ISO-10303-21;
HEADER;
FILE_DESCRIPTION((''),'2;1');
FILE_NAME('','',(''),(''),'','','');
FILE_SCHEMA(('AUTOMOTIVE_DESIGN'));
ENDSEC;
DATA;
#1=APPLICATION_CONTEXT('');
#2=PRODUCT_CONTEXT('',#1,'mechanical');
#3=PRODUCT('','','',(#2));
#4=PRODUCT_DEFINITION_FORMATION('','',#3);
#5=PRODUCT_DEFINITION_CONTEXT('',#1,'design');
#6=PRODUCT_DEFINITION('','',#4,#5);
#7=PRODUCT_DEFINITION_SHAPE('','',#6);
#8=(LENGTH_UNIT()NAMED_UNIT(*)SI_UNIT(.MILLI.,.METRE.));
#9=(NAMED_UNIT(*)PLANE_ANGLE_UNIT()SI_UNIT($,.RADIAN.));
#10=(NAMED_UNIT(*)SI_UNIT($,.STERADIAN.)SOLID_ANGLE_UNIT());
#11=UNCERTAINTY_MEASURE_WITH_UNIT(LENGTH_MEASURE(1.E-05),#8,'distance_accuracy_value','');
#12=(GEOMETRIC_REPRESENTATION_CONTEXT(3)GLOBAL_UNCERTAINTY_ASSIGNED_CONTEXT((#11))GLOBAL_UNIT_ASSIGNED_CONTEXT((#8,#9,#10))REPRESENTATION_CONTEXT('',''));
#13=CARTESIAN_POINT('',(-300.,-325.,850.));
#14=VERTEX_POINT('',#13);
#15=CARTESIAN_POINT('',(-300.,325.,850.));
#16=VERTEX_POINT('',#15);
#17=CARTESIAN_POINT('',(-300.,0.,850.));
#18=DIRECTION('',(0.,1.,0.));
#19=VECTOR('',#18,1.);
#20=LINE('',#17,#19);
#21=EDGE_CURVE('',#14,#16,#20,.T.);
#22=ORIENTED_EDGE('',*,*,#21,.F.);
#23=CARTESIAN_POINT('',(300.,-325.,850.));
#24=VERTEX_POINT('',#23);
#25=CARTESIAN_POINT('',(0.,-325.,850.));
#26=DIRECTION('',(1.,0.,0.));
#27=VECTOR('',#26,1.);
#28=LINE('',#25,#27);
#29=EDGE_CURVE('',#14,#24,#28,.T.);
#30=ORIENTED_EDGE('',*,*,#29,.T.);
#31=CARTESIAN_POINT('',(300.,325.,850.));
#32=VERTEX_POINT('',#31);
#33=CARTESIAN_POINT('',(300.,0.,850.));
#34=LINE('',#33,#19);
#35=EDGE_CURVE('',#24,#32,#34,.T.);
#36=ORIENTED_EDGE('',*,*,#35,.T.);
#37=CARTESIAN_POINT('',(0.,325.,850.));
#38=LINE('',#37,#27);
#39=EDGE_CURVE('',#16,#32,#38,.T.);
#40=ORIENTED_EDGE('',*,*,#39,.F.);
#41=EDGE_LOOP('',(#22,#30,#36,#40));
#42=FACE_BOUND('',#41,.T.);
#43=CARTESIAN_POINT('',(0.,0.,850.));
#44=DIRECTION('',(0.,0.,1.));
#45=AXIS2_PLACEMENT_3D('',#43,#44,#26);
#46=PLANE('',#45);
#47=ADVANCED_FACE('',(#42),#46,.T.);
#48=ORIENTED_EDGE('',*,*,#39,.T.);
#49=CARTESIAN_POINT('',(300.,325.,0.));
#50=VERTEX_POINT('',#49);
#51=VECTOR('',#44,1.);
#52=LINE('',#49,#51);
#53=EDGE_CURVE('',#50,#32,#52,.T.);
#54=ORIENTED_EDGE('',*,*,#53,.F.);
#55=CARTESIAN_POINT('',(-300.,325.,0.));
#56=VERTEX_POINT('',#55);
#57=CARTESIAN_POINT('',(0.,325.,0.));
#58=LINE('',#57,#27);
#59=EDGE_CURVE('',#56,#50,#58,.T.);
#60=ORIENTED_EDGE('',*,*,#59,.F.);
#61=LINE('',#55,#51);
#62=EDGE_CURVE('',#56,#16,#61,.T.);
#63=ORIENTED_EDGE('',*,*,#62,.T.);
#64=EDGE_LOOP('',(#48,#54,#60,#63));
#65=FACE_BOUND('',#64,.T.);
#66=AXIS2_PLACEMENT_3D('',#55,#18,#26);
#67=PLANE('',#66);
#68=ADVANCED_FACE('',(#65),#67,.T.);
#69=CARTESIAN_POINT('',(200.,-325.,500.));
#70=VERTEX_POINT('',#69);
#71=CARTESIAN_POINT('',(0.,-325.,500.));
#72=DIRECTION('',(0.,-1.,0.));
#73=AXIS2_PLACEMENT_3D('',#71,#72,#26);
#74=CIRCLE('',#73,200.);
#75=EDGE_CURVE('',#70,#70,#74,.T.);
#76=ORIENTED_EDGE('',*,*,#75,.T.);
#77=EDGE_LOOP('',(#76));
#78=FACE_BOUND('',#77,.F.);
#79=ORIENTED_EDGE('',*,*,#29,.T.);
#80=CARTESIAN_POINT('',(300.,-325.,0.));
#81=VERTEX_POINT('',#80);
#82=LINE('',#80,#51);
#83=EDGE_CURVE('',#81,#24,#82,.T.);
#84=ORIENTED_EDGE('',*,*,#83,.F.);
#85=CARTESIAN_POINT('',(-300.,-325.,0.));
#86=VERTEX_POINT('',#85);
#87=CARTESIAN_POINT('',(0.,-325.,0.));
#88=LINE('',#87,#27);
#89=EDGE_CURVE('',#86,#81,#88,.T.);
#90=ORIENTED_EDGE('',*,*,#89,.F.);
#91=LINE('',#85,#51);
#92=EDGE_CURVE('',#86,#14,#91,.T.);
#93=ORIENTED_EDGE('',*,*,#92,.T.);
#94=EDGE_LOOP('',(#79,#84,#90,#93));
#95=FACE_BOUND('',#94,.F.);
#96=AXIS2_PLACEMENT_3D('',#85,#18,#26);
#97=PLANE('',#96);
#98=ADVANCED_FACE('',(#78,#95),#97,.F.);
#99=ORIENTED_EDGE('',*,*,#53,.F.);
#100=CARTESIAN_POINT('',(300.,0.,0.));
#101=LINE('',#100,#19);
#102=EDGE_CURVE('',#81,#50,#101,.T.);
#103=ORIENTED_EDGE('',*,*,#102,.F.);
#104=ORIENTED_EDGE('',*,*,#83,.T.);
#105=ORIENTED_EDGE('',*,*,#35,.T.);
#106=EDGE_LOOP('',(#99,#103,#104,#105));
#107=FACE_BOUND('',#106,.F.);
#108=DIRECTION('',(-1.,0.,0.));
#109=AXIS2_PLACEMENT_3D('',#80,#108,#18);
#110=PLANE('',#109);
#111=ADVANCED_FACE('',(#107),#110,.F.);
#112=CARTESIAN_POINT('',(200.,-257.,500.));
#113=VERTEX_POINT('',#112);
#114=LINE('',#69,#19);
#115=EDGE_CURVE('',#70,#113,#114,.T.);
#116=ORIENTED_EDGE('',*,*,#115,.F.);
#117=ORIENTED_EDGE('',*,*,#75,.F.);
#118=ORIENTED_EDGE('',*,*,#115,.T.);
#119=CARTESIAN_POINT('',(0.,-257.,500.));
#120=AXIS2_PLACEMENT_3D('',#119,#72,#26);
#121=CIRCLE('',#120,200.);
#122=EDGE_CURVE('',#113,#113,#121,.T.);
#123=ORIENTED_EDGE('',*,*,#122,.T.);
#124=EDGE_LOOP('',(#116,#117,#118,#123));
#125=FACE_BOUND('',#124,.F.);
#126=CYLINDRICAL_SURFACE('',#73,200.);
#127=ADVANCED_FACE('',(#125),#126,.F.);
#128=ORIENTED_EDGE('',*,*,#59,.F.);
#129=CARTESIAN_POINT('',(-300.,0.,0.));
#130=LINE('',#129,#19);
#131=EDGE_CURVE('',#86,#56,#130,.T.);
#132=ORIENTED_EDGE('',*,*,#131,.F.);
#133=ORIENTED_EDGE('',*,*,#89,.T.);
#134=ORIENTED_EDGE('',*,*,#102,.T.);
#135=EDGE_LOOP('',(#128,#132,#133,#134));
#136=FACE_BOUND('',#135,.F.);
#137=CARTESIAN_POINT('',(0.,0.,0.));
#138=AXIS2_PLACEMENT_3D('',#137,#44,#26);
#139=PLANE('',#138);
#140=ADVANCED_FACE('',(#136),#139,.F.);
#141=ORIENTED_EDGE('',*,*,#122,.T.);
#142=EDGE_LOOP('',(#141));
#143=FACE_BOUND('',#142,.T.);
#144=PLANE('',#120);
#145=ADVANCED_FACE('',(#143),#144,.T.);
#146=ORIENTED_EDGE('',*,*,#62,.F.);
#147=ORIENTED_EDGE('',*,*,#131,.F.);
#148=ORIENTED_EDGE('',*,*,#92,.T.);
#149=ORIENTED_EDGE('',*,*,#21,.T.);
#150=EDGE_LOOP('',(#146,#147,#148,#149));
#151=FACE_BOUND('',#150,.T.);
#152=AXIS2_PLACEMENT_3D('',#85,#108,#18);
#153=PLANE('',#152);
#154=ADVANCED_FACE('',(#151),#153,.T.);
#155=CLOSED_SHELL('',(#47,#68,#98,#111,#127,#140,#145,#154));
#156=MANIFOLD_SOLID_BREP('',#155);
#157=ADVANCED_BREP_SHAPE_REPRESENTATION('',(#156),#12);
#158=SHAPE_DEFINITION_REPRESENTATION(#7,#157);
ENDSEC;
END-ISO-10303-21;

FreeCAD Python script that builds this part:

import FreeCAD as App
import Part
import Sketcher


def add_polygon(sketch, points):
    """Adds a closed chain of lines whose ends are joined by coincident constraints."""
    first, n = sketch.GeometryCount, len(points)
    for a, b in zip(points, points[1:] + points[:1]):
        sketch.addGeometry(Part.LineSegment(App.Vector(*a, 0), App.Vector(*b, 0)), False)
    for i in range(n):
        sketch.addConstraint(Sketcher.Constraint("Coincident", first + i, 2, first + (i + 1) % n, 1))

doc = App.newDocument("Part")
body = doc.addObject("PartDesign::Body", "Body")

# Sketch on XY plane
sketch1 = doc.addObject("Sketcher::SketchObject", "Sketch")
body.addObject(sketch1)
sketch1.AttachmentSupport = (doc.XY_Plane, [""])
sketch1.MapMode = "FlatFace"
add_polygon(sketch1, [(-300, 325), (-300, -325), (300, -325), (300, 325)])  # lines 0-3
sketch1.addConstraint([
    Sketcher.Constraint("Vertical", 0),
    Sketcher.Constraint("Horizontal", 1),
    Sketcher.Constraint("Vertical", 2),
    Sketcher.Constraint("Horizontal", 3),
    Sketcher.Constraint("Symmetric", 0, 2, 2, 2, -1, 1),
    Sketcher.Constraint("DistanceX", 1, 1, 1, 2, 600.0),
    Sketcher.Constraint("DistanceY", 0, 2, 0, 1, 650.0),
])
pad1 = doc.addObject("PartDesign::Pad", "Pad")
body.addObject(pad1)
pad1.Profile = sketch1
pad1.Length = 850

# Sketch on XZ plane
sketch2 = doc.addObject("Sketcher::SketchObject", "Sketch001")
body.addObject(sketch2)
sketch2.AttachmentSupport = (doc.XZ_Plane, [""])
sketch2.MapMode = "FlatFace"
sketch2.AttachmentOffset = App.Placement(App.Vector(0, 0, 325), App.Rotation())
sketch2.addGeometry(Part.Circle(App.Vector(0, 500, 0), App.Vector(0, 0, 1), 200), False)
sketch2.addConstraint([
    Sketcher.Constraint("PointOnObject", 0, 3, -2),
    Sketcher.Constraint("Diameter", 0, 400.0),
    Sketcher.Constraint("DistanceY", -1, 1, 0, 3, 500.0),
])
pocket1 = doc.addObject("PartDesign::Pocket", "Pocket")
body.addObject(pocket1)
pocket1.Profile = sketch2
pocket1.Length = 68

doc.recompute()
